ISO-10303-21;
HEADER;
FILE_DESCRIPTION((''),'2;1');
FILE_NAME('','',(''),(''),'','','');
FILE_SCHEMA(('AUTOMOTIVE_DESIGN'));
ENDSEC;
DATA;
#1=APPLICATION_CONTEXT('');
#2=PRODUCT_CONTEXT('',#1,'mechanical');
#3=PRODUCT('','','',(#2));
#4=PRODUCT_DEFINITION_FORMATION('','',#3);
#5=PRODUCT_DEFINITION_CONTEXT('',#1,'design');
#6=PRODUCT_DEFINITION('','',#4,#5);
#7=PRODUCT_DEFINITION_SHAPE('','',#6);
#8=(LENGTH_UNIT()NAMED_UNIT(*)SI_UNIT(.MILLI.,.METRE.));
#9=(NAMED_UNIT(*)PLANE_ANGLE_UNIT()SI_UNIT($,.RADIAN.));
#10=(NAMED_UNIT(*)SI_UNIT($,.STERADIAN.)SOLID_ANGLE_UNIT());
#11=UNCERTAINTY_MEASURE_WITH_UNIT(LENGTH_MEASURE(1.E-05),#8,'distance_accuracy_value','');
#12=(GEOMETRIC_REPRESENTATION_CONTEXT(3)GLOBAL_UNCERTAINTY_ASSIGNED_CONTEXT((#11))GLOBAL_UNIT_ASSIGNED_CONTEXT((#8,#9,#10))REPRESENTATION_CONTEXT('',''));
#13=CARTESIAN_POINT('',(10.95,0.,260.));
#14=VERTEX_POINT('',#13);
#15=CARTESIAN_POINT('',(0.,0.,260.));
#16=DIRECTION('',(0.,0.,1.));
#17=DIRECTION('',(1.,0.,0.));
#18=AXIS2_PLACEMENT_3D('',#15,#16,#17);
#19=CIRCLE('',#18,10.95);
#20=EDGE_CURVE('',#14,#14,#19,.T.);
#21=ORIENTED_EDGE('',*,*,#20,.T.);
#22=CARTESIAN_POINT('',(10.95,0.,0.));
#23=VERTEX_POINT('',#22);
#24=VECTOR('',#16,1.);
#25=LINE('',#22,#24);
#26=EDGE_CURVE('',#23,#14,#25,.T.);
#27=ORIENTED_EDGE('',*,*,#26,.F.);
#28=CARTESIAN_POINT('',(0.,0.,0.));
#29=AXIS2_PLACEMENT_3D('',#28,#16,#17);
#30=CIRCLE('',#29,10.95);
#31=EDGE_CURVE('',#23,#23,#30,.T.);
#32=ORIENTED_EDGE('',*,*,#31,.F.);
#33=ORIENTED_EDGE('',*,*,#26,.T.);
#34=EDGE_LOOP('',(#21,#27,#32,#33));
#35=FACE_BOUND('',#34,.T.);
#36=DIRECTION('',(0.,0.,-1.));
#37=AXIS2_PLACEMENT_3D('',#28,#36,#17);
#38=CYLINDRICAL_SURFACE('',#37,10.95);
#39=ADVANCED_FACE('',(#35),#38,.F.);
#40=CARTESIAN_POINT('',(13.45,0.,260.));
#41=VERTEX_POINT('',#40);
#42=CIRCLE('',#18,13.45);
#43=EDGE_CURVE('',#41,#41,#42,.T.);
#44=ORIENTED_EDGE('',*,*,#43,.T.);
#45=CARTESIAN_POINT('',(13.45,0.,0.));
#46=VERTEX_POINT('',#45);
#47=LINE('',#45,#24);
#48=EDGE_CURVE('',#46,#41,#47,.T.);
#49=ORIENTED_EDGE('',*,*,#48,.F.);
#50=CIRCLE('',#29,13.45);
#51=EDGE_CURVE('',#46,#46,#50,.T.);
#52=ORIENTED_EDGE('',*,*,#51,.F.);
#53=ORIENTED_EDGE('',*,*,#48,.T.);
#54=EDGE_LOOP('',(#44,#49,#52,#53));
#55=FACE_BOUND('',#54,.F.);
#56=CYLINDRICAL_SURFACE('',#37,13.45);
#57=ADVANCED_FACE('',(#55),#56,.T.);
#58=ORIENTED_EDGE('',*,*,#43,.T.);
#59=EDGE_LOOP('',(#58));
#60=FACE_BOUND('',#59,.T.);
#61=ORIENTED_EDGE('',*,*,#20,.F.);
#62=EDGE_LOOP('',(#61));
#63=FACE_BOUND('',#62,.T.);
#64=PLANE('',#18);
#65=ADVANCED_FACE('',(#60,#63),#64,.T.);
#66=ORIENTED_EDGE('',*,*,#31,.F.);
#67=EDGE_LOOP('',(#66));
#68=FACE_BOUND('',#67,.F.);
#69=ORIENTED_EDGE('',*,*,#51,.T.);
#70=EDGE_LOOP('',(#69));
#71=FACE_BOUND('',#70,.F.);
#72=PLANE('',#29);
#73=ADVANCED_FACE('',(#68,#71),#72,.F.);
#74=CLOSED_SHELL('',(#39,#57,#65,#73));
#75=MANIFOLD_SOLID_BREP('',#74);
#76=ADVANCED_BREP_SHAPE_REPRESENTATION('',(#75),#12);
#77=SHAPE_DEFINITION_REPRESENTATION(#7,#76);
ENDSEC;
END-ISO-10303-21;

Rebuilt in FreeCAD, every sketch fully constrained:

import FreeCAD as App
import Part
import Sketcher
from FreeCAD import Vector

doc = App.newDocument("Part")
body = doc.addObject("PartDesign::Body", "Body")

sketch1 = body.newObject("Sketcher::SketchObject", "Sketch")
sketch1.AttachmentSupport = (doc.getObject("XY_Plane"), [""])
sketch1.MapMode = "FlatFace"
sketch1.addGeometry(Part.Circle(Vector(0, 0, 0), Vector(0, 0, 1), 13), False)
sketch1.addGeometry(Part.Circle(Vector(0, 0, 0), Vector(0, 0, 1), 11), False)
sketch1.addConstraint(Sketcher.Constraint("Coincident", 0, 3, -1, 1))
sketch1.addConstraint(Sketcher.Constraint("Coincident", 1, 3, -1, 1))
sketch1.addConstraint(Sketcher.Constraint("Diameter", 0, 26.9))
sketch1.addConstraint(Sketcher.Constraint("Diameter", 1, 21.9))
pad1 = body.newObject("PartDesign::Pad", "Pad")
pad1.Profile = sketch1
pad1.Length = 260

doc.recompute()
